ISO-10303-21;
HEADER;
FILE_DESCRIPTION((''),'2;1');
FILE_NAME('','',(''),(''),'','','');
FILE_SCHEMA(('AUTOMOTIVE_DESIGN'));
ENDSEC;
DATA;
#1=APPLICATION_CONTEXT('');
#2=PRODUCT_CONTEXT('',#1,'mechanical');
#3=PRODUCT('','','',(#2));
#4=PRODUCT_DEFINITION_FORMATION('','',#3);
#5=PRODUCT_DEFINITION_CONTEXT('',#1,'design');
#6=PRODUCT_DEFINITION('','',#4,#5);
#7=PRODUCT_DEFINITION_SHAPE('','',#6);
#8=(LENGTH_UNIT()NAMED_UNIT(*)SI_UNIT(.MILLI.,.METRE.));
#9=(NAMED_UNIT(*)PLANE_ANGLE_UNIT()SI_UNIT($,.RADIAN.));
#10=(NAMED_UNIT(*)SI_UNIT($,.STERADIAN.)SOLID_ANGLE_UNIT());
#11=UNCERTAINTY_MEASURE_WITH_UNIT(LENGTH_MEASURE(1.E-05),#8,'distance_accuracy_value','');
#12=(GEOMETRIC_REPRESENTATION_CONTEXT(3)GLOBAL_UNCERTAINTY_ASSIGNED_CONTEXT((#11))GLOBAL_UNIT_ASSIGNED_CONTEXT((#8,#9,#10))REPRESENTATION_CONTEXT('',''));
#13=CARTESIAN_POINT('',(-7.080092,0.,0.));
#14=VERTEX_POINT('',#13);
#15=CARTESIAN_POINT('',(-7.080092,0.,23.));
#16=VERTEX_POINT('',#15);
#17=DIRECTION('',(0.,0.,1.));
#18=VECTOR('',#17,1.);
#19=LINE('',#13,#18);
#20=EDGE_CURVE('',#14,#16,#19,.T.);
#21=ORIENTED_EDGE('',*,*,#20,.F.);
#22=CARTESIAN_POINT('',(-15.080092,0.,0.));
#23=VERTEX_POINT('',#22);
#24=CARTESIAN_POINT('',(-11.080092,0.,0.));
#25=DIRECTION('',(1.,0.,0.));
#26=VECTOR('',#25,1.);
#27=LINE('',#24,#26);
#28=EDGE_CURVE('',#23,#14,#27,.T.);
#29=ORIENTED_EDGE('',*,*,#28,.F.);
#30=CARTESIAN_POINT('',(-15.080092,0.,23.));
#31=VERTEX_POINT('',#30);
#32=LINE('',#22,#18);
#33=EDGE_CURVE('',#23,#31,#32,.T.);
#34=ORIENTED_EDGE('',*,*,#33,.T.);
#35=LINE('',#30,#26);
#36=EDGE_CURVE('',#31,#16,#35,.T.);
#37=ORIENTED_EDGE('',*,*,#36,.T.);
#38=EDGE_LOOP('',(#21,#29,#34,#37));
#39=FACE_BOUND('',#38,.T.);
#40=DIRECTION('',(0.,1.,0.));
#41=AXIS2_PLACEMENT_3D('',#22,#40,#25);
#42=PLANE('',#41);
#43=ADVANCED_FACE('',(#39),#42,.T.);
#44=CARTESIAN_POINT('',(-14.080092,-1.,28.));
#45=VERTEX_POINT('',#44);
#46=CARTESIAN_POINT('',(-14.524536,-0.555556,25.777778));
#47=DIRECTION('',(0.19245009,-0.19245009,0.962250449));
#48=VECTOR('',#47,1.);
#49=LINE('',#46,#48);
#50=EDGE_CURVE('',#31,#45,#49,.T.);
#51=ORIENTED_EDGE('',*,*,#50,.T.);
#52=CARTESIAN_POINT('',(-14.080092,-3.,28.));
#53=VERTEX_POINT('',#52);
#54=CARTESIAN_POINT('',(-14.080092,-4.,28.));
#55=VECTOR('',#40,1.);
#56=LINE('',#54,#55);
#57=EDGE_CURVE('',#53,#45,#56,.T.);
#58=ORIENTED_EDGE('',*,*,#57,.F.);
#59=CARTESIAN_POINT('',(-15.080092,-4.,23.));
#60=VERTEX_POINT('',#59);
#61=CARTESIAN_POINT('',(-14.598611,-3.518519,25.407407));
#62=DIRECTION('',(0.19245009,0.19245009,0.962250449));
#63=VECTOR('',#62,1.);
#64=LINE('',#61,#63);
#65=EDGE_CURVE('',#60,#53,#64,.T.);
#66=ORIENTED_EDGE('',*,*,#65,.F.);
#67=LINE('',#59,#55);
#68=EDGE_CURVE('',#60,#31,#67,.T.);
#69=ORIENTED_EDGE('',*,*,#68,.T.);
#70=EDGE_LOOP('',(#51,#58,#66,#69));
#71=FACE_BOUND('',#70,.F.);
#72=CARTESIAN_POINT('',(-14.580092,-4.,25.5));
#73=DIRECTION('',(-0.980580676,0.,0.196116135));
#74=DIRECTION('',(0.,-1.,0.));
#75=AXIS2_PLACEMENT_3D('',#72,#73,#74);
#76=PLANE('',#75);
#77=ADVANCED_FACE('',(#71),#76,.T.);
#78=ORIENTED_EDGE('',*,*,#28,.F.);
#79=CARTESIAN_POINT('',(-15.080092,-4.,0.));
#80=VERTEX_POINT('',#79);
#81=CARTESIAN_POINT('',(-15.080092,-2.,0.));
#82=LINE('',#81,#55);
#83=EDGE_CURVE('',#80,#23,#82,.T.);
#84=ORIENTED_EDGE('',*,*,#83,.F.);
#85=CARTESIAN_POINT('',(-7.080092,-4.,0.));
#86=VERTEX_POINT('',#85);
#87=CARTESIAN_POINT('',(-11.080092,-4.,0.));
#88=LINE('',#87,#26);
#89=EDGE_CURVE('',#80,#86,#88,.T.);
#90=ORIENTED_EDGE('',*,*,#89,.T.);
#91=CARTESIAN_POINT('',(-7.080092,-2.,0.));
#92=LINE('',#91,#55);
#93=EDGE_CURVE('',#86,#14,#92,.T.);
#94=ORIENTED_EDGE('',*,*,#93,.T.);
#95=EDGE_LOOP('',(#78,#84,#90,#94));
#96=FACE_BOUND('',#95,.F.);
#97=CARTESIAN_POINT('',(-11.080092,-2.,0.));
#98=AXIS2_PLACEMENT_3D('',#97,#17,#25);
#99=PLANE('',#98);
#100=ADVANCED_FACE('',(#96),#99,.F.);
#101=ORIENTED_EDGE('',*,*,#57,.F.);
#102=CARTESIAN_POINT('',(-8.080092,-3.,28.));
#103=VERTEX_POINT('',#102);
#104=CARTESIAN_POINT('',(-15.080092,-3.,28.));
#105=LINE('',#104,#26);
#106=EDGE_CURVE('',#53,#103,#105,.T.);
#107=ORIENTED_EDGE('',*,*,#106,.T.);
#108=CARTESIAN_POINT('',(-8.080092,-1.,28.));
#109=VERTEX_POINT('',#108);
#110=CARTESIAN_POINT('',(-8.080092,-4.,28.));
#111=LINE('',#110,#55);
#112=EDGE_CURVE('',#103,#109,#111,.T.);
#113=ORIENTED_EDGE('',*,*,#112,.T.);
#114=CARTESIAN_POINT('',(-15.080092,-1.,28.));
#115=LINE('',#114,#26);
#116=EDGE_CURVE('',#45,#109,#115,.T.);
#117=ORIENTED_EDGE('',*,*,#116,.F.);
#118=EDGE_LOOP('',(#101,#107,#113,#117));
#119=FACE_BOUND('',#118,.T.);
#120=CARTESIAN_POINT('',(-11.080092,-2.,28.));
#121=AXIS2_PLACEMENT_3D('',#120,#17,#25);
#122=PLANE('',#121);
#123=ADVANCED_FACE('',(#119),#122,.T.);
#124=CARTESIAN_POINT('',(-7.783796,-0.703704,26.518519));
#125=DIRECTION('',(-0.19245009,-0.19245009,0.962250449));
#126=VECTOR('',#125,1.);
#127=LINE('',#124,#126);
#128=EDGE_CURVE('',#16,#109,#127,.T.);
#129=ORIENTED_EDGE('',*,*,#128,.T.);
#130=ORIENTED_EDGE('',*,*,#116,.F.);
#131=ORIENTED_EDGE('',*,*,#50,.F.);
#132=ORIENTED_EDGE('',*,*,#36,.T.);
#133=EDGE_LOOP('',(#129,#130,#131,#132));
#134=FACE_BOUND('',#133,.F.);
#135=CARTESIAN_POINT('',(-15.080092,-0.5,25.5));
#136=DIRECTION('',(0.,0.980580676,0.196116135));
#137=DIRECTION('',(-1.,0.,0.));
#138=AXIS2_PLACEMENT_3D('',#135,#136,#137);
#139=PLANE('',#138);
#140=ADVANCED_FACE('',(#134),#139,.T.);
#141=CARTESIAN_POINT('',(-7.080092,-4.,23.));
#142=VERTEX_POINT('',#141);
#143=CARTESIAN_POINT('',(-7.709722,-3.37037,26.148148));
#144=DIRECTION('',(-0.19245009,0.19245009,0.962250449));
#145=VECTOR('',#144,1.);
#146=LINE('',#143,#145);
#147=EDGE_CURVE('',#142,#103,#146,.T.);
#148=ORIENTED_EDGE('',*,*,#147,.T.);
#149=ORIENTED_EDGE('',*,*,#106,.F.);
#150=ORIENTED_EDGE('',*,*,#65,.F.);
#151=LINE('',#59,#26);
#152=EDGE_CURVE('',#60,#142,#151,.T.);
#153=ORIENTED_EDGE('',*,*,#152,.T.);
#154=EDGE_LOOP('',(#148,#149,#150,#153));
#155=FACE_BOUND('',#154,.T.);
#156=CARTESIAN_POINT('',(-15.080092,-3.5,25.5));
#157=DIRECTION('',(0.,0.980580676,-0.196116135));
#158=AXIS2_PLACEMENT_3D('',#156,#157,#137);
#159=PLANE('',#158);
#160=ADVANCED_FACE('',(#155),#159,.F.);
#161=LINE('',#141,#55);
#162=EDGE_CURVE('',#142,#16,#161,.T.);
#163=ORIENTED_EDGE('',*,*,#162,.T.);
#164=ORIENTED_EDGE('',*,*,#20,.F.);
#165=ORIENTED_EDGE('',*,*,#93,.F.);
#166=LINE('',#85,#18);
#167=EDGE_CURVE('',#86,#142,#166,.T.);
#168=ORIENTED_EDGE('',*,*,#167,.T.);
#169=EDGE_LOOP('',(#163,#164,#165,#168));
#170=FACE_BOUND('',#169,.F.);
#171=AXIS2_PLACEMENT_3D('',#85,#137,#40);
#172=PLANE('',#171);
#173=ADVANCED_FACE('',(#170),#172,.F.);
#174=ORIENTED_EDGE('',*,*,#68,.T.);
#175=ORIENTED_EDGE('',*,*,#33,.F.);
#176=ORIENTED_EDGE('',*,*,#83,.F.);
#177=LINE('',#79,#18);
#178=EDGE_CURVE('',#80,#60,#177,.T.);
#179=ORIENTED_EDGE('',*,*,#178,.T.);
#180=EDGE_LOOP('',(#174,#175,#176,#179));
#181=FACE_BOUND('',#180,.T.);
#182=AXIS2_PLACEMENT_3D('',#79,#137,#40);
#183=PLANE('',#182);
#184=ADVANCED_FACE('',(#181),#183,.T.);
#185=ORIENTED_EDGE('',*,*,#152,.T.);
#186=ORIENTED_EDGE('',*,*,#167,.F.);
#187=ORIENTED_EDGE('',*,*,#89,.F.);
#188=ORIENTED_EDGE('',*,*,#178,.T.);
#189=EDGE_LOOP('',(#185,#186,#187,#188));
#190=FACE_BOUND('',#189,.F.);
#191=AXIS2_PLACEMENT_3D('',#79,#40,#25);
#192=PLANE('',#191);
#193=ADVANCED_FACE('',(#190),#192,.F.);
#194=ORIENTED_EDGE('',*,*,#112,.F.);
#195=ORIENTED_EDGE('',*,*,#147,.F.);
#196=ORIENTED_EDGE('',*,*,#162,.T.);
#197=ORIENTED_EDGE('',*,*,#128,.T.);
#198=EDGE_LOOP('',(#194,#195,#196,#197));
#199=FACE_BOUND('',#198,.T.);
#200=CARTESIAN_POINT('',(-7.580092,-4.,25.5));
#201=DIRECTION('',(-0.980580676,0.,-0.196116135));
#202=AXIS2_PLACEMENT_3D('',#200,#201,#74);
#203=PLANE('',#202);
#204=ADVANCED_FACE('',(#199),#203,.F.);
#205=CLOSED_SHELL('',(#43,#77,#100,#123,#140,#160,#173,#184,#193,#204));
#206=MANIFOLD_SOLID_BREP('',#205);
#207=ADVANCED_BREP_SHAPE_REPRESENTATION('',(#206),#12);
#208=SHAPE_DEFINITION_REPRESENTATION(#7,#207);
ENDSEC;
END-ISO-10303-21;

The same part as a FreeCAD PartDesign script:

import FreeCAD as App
import Part
import Sketcher
from FreeCAD import Vector
Q = App.Units.Quantity


def edges_at(feature, points):
    """Names of the edges that pass closest to the given points."""
    edges = feature.Shape.Edges
    near = lambda p: min(range(len(edges)), key=lambda i: edges[i].distToShape(Part.Vertex(*p))[0])
    return sorted({f"Edge{near(p) + 1}" for p in points})


def add_polygon(sketch, points):
    """Adds a closed chain of lines whose ends are joined by coincident constraints."""
    first, n = sketch.GeometryCount, len(points)
    for a, b in zip(points, points[1:] + points[:1]):
        sketch.addGeometry(Part.LineSegment(App.Vector(*a, 0), App.Vector(*b, 0)), False)
    for i in range(n):
        sketch.addConstraint(Sketcher.Constraint("Coincident", first + i, 2, first + (i + 1) % n, 1))

doc = App.newDocument("Part")
body = doc.addObject("PartDesign::Body", "Body")

sketch1 = body.newObject("Sketcher::SketchObject", "Sketch")
sketch1.AttachmentSupport = (doc.getObject("XY_Plane"), [""])
sketch1.MapMode = "FlatFace"
add_polygon(sketch1, [(-15.1, 0), (-15.1, -4), (-7.1, -4), (-7.1, 0)])
sketch1.addConstraint([
    Sketcher.Constraint("Vertical", 0),
    Sketcher.Constraint("Horizontal", 1),
    Sketcher.Constraint("Vertical", 2),
    Sketcher.Constraint("Horizontal", 3),
    Sketcher.Constraint("PointOnObject", 2, 2, -1),
    Sketcher.Constraint("DistanceX", 1, 1, 1, 2, Q("8 mm")),
    Sketcher.Constraint("DistanceY", 0, 2, 0, 1, Q("4 mm")),
    Sketcher.Constraint("DistanceX", 1, 2, -1, 1, Q("7.080092 mm")),
])
pad1 = body.newObject("PartDesign::Pad", "Pad")
pad1.Profile = sketch1
pad1.Length = 28
doc.recompute()

chamfer = body.newObject("PartDesign::Chamfer", "Chamfer")
chamfer.Base = (pad1, edges_at(pad1, [
    (-11.08, 0, 28),
    (-11.08, -4, 28),
    (-7.08, -2, 28),
    (-15.08, -2, 28),
]))
chamfer.ChamferType = "Two distances"
chamfer.Size = 5
chamfer.Size2 = 1

doc.recompute()
